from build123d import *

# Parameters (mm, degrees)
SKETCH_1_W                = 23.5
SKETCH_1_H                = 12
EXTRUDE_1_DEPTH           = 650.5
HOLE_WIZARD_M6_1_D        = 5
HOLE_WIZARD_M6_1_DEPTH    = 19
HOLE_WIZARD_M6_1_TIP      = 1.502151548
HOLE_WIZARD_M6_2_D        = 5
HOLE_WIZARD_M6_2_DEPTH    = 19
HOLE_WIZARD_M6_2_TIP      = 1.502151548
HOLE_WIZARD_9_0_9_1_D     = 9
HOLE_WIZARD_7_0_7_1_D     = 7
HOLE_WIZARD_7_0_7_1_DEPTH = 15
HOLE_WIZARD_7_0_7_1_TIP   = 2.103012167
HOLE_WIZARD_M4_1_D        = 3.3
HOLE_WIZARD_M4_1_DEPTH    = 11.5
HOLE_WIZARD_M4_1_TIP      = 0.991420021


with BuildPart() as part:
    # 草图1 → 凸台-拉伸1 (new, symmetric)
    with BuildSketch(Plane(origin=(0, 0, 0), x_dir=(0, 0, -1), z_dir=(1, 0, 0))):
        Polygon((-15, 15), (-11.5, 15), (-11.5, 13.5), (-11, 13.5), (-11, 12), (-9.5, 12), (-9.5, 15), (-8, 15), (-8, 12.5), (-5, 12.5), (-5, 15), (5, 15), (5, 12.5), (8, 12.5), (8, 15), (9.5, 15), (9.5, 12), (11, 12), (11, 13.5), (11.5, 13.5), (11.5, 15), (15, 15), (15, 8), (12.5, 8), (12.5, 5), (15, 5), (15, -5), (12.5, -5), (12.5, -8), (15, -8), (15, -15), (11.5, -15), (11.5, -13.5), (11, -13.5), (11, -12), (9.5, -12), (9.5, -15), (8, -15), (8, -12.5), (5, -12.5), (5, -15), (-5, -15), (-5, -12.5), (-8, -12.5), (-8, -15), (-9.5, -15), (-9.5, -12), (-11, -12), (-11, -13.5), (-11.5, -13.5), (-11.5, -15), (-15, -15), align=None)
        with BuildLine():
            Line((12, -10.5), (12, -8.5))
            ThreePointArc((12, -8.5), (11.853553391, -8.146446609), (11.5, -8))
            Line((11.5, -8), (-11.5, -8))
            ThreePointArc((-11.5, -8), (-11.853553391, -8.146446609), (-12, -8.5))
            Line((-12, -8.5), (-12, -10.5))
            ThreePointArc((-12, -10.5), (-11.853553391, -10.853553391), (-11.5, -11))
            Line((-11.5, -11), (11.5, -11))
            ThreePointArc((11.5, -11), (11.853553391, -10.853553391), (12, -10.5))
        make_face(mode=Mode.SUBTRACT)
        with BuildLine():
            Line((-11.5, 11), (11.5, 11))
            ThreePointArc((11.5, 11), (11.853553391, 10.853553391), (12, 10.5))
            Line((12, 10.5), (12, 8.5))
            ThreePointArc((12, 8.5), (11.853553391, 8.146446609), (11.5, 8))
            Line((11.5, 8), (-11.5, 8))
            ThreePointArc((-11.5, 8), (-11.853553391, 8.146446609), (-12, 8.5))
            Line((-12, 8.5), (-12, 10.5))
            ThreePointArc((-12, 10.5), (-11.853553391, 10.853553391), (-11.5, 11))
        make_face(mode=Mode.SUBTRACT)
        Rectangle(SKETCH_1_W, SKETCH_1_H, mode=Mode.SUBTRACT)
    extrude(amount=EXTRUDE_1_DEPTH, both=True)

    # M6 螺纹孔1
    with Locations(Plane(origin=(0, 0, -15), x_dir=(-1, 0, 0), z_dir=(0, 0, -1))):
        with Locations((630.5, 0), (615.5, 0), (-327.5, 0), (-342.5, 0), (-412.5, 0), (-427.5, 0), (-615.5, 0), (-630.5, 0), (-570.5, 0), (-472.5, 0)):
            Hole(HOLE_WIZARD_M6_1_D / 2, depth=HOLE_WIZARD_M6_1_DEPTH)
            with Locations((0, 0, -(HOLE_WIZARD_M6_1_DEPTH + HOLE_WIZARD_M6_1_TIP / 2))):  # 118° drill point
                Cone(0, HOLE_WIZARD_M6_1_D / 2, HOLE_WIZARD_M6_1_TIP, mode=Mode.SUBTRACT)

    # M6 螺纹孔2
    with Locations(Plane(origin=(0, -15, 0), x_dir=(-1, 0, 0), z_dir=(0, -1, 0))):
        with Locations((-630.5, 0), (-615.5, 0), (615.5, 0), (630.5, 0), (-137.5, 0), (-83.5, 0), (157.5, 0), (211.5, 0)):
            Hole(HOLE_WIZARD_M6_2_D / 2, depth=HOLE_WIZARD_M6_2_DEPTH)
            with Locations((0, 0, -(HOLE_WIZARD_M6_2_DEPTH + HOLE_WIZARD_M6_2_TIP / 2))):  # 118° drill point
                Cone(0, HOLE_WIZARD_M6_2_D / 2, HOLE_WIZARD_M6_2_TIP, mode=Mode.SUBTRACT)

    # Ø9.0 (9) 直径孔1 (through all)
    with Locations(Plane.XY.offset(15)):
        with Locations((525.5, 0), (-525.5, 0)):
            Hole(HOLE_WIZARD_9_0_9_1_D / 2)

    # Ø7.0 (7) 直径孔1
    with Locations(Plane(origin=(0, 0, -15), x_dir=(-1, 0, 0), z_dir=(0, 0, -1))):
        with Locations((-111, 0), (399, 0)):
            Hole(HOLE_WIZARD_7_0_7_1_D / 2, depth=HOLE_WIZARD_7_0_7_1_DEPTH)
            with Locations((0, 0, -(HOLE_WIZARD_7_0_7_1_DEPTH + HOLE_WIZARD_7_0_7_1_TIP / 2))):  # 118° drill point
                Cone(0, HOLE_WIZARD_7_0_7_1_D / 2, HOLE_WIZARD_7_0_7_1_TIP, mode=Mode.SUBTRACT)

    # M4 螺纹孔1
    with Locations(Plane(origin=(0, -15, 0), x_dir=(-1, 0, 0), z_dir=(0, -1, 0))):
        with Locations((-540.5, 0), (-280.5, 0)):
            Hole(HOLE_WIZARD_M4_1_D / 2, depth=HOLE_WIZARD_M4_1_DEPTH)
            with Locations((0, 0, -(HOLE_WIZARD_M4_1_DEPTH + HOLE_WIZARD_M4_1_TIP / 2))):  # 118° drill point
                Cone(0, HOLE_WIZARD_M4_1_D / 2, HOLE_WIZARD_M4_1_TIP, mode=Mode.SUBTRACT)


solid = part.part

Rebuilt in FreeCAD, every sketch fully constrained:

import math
import FreeCAD as App
import Part
import Sketcher

V = App.Vector

doc = App.newDocument("Part")
params = doc.addObject("Spreadsheet::Sheet", "Params")
for row, (alias, value) in enumerate([
    ("sketch1_radius", "0.5 mm"),
    ("sketch1_width", "30 mm"),
    ("sketch1_width2", "3 mm"),
    ("sketch1_width3", "7 mm"),
    ("sketch1_width4", "2 mm"),
    ("pad1_length", "1301 mm"),
    ("sketch2_diameter", "5 mm"),
    ("hole_diameter", "5 mm"),
    ("hole_depth", "19 mm"),
    ("sketch3_diameter", "5 mm"),
    ("hole2_diameter", "5 mm"),
    ("hole2_depth", "19 mm"),
    ("sketch4_diameter", "9 mm"),
    ("hole3_diameter", "9 mm"),
    ("sketch5_diameter", "7 mm"),
    ("hole4_diameter", "7 mm"),
    ("hole4_depth", "15 mm"),
    ("sketch6_diameter", "3.3 mm"),
    ("hole5_diameter", "3.3 mm"),
    ("hole5_depth", "11.5 mm"),
], start=1):
    params.set(f"A{row}", alias)
    params.set(f"B{row}", "=" + value)
    params.setAlias(f"B{row}", alias)

body = doc.addObject("PartDesign::Body", "Body")

# Sketch on YZ plane
sketch1 = body.newObject("Sketcher::SketchObject", "Sketch")
sketch1.AttachmentSupport = (doc.getObject("YZ_Plane"), [""])
sketch1.MapMode = "FlatFace"
sketch1.addGeometry(Part.LineSegment(V(15, 11.5, 0), V(15, 15, 0)), False)
sketch1.addGeometry(Part.LineSegment(V(15, 15, 0), V(-15, 15, 0)), False)
sketch1.addGeometry(Part.LineSegment(V(-15, 15, 0), V(-15, 11.5, 0)), False)
sketch1.addGeometry(Part.LineSegment(V(-15, 11.5, 0), V(-13.5, 11.5, 0)), False)
sketch1.addGeometry(Part.LineSegment(V(-13.5, 11.5, 0), V(-13.5, 11, 0)), False)
sketch1.addGeometry(Part.LineSegment(V(-13.5, 11, 0), V(-12, 11, 0)), False)
sketch1.addGeometry(Part.LineSegment(V(-12, 11, 0), V(-12, 9.5, 0)), False)
sketch1.addGeometry(Part.LineSegment(V(-12, 9.5, 0), V(-15, 9.5, 0)), False)
sketch1.addGeometry(Part.LineSegment(V(-15, 9.5, 0), V(-15, 8, 0)), False)
sketch1.addGeometry(Part.LineSegment(V(-15, 8, 0), V(-12.5, 8, 0)), False)
sketch1.addGeometry(Part.LineSegment(V(-12.5, 8, 0), V(-12.5, 5, 0)), False)
sketch1.addGeometry(Part.LineSegment(V(-12.5, 5, 0), V(-15, 5, 0)), False)
sketch1.addGeometry(Part.LineSegment(V(-15, 5, 0), V(-15, -5, 0)), False)
sketch1.addGeometry(Part.LineSegment(V(-15, -5, 0), V(-12.5, -5, 0)), False)
sketch1.addGeometry(Part.LineSegment(V(-12.5, -5, 0), V(-12.5, -8, 0)), False)
sketch1.addGeometry(Part.LineSegment(V(-12.5, -8, 0), V(-15, -8, 0)), False)
sketch1.addGeometry(Part.LineSegment(V(-15, -8, 0), V(-15, -9.5, 0)), False)
sketch1.addGeometry(Part.LineSegment(V(-15, -9.5, 0), V(-12, -9.5, 0)), False)
sketch1.addGeometry(Part.LineSegment(V(-12, -9.5, 0), V(-12, -11, 0)), False)
sketch1.addGeometry(Part.LineSegment(V(-12, -11, 0), V(-13.5, -11, 0)), False)
sketch1.addGeometry(Part.LineSegment(V(-13.5, -11, 0), V(-13.5, -11.5, 0)), False)
sketch1.addGeometry(Part.LineSegment(V(-13.5, -11.5, 0), V(-15, -11.5, 0)), False)
sketch1.addGeometry(Part.LineSegment(V(-15, -11.5, 0), V(-15, -15, 0)), False)
sketch1.addGeometry(Part.LineSegment(V(-15, -15, 0), V(-8, -15, 0)), False)
sketch1.addGeometry(Part.LineSegment(V(-8, -15, 0), V(-8, -12.5, 0)), False)
sketch1.addGeometry(Part.LineSegment(V(-8, -12.5, 0), V(-5, -12.5, 0)), False)
sketch1.addGeometry(Part.LineSegment(V(-5, -12.5, 0), V(-5, -15, 0)), False)
sketch1.addGeometry(Part.LineSegment(V(-5, -15, 0), V(5, -15, 0)), False)
sketch1.addGeometry(Part.LineSegment(V(5, -15, 0), V(5, -12.5, 0)), False)
sketch1.addGeometry(Part.LineSegment(V(5, -12.5, 0), V(8, -12.5, 0)), False)
sketch1.addGeometry(Part.LineSegment(V(8, -12.5, 0), V(8, -15, 0)), False)
sketch1.addGeometry(Part.LineSegment(V(8, -15, 0), V(15, -15, 0)), False)
sketch1.addGeometry(Part.LineSegment(V(15, -15, 0), V(15, -11.5, 0)), False)
sketch1.addGeometry(Part.LineSegment(V(15, -11.5, 0), V(13.5, -11.5, 0)), False)
sketch1.addGeometry(Part.LineSegment(V(13.5, -11.5, 0), V(13.5, -11, 0)), False)
sketch1.addGeometry(Part.LineSegment(V(13.5, -11, 0), V(12, -11, 0)), False)
sketch1.addGeometry(Part.LineSegment(V(12, -11, 0), V(12, -9.5, 0)), False)
sketch1.addGeometry(Part.LineSegment(V(12, -9.5, 0), V(15, -9.5, 0)), False)
sketch1.addGeometry(Part.LineSegment(V(15, -9.5, 0), V(15, -8, 0)), False)
sketch1.addGeometry(Part.LineSegment(V(15, -8, 0), V(12.5, -8, 0)), False)
sketch1.addGeometry(Part.LineSegment(V(12.5, -8, 0), V(12.5, -5, 0)), False)
sketch1.addGeometry(Part.LineSegment(V(12.5, -5, 0), V(15, -5, 0)), False)
sketch1.addGeometry(Part.LineSegment(V(15, -5, 0), V(15, 5, 0)), False)
sketch1.addGeometry(Part.LineSegment(V(15, 5, 0), V(12.5, 5, 0)), False)
sketch1.addGeometry(Part.LineSegment(V(12.5, 5, 0), V(12.5, 8, 0)), False)
sketch1.addGeometry(Part.LineSegment(V(12.5, 8, 0), V(15, 8, 0)), False)
sketch1.addGeometry(Part.LineSegment(V(15, 8, 0), V(15, 9.5, 0)), False)
sketch1.addGeometry(Part.LineSegment(V(15, 9.5, 0), V(12, 9.5, 0)), False)
sketch1.addGeometry(Part.LineSegment(V(12, 9.5, 0), V(12, 11, 0)), False)
sketch1.addGeometry(Part.LineSegment(V(12, 11, 0), V(13.5, 11, 0)), False)
sketch1.addGeometry(Part.LineSegment(V(13.5, 11, 0), V(13.5, 11.5, 0)), False)
sketch1.addGeometry(Part.LineSegment(V(13.5, 11.5, 0), V(15, 11.5, 0)), False)
sketch1.addGeometry(Part.ArcOfCircle(Part.Circle(V(-10.5, -11.5, 0), V(0, 0, 1), 0.5), math.radians(180), math.radians(270)), False)
sketch1.addGeometry(Part.LineSegment(V(-11, -11.5, 0), V(-11, 11.5, 0)), False)
sketch1.addGeometry(Part.ArcOfCircle(Part.Circle(V(-10.5, 11.5, 0), V(0, 0, 1), 0.5), math.radians(90), math.radians(180)), False)
sketch1.addGeometry(Part.LineSegment(V(-10.5, 12, 0), V(-8.5, 12, 0)), False)
sketch1.addGeometry(Part.ArcOfCircle(Part.Circle(V(-8.5, 11.5, 0), V(0, 0, 1), 0.5), math.radians(0), math.radians(90)), False)
sketch1.addGeometry(Part.LineSegment(V(-8, 11.5, 0), V(-8, -11.5, 0)), False)
sketch1.addGeometry(Part.ArcOfCircle(Part.Circle(V(-8.5, -11.5, 0), V(0, 0, 1), 0.5), math.radians(-90), math.radians(0)), False)
sketch1.addGeometry(Part.LineSegment(V(-8.5, -12, 0), V(-10.5, -12, 0)), False)
sketch1.addGeometry(Part.LineSegment(V(-6, 11.75, 0), V(6, 11.75, 0)), False)
sketch1.addGeometry(Part.LineSegment(V(6, 11.75, 0), V(6, -11.75, 0)), False)
sketch1.addGeometry(Part.LineSegment(V(6, -11.75, 0), V(-6, -11.75, 0)), False)
sketch1.addGeometry(Part.LineSegment(V(-6, -11.75, 0), V(-6, 11.75, 0)), False)
sketch1.addGeometry(Part.LineSegment(V(11, 11.5, 0), V(11, -11.5, 0)), False)
sketch1.addGeometry(Part.ArcOfCircle(Part.Circle(V(10.5, -11.5, 0), V(0, 0, 1), 0.5), math.radians(-90), math.radians(0)), False)
sketch1.addGeometry(Part.LineSegment(V(10.5, -12, 0), V(8.5, -12, 0)), False)
sketch1.addGeometry(Part.ArcOfCircle(Part.Circle(V(8.5, -11.5, 0), V(0, 0, 1), 0.5), math.radians(180), math.radians(270)), False)
sketch1.addGeometry(Part.LineSegment(V(8, -11.5, 0), V(8, 11.5, 0)), False)
sketch1.addGeometry(Part.ArcOfCircle(Part.Circle(V(8.5, 11.5, 0), V(0, 0, 1), 0.5), math.radians(90), math.radians(180)), False)
sketch1.addGeometry(Part.LineSegment(V(8.5, 12, 0), V(10.5, 12, 0)), False)
sketch1.addGeometry(Part.ArcOfCircle(Part.Circle(V(10.5, 11.5, 0), V(0, 0, 1), 0.5), math.radians(0), math.radians(90)), False)
sketch1.addConstraint(Sketcher.Constraint("Coincident", 0, 2, 1, 1))
sketch1.addConstraint(Sketcher.Constraint("Coincident", 1, 2, 2, 1))
sketch1.addConstraint(Sketcher.Constraint("Coincident", 2, 2, 3, 1))
sketch1.addConstraint(Sketcher.Constraint("Coincident", 3, 2, 4, 1))
sketch1.addConstraint(Sketcher.Constraint("Coincident", 4, 2, 5, 1))
sketch1.addConstraint(Sketcher.Constraint("Coincident", 5, 2, 6, 1))
sketch1.addConstraint(Sketcher.Constraint("Coincident", 6, 2, 7, 1))
sketch1.addConstraint(Sketcher.Constraint("Coincident", 7, 2, 8, 1))
sketch1.addConstraint(Sketcher.Constraint("Coincident", 8, 2, 9, 1))
sketch1.addConstraint(Sketcher.Constraint("Coincident", 9, 2, 10, 1))
sketch1.addConstraint(Sketcher.Constraint("Coincident", 10, 2, 11, 1))
sketch1.addConstraint(Sketcher.Constraint("Coincident", 11, 2, 12, 1))
sketch1.addConstraint(Sketcher.Constraint("Coincident", 12, 2, 13, 1))
sketch1.addConstraint(Sketcher.Constraint("Coincident", 13, 2, 14, 1))
sketch1.addConstraint(Sketcher.Constraint("Coincident", 14, 2, 15, 1))
sketch1.addConstraint(Sketcher.Constraint("Coincident", 15, 2, 16, 1))
sketch1.addConstraint(Sketcher.Constraint("Coincident", 16, 2, 17, 1))
sketch1.addConstraint(Sketcher.Constraint("Coincident", 17, 2, 18, 1))
sketch1.addConstraint(Sketcher.Constraint("Coincident", 18, 2, 19, 1))
sketch1.addConstraint(Sketcher.Constraint("Coincident", 19, 2, 20, 1))
sketch1.addConstraint(Sketcher.Constraint("Coincident", 20, 2, 21, 1))
sketch1.addConstraint(Sketcher.Constraint("Coincident", 21, 2, 22, 1))
sketch1.addConstraint(Sketcher.Constraint("Coincident", 22, 2, 23, 1))
sketch1.addConstraint(Sketcher.Constraint("Coincident", 23, 2, 24, 1))
sketch1.addConstraint(Sketcher.Constraint("Coincident", 24, 2, 25, 1))
sketch1.addConstraint(Sketcher.Constraint("Coincident", 25, 2, 26, 1))
sketch1.addConstraint(Sketcher.Constraint("Coincident", 26, 2, 27, 1))
sketch1.addConstraint(Sketcher.Constraint("Coincident", 27, 2, 28, 1))
sketch1.addConstraint(Sketcher.Constraint("Coincident", 28, 2, 29, 1))
sketch1.addConstraint(Sketcher.Constraint("Coincident", 29, 2, 30, 1))
sketch1.addConstraint(Sketcher.Constraint("Coincident", 30, 2, 31, 1))
sketch1.addConstraint(Sketcher.Constraint("Coincident", 31, 2, 32, 1))
sketch1.addConstraint(Sketcher.Constraint("Coincident", 32, 2, 33, 1))
sketch1.addConstraint(Sketcher.Constraint("Coincident", 33, 2, 34, 1))
sketch1.addConstraint(Sketcher.Constraint("Coincident", 34, 2, 35, 1))
sketch1.addConstraint(Sketcher.Constraint("Coincident", 35, 2, 36, 1))
sketch1.addConstraint(Sketcher.Constraint("Coincident", 36, 2, 37, 1))
sketch1.addConstraint(Sketcher.Constraint("Coincident", 37, 2, 38, 1))
sketch1.addConstraint(Sketcher.Constraint("Coincident", 38, 2, 39, 1))
sketch1.addConstraint(Sketcher.Constraint("Coincident", 39, 2, 40, 1))
sketch1.addConstraint(Sketcher.Constraint("Coincident", 40, 2, 41, 1))
sketch1.addConstraint(Sketcher.Constraint("Coincident", 41, 2, 42, 1))
sketch1.addConstraint(Sketcher.Constraint("Coincident", 42, 2, 43, 1))
sketch1.addConstraint(Sketcher.Constraint("Coincident", 43, 2, 44, 1))
sketch1.addConstraint(Sketcher.Constraint("Coincident", 44, 2, 45, 1))
sketch1.addConstraint(Sketcher.Constraint("Coincident", 45, 2, 46, 1))
sketch1.addConstraint(Sketcher.Constraint("Coincident", 46, 2, 47, 1))
sketch1.addConstraint(Sketcher.Constraint("Coincident", 47, 2, 48, 1))
sketch1.addConstraint(Sketcher.Constraint("Coincident", 48, 2, 49, 1))
sketch1.addConstraint(Sketcher.Constraint("Coincident", 49, 2, 50, 1))
sketch1.addConstraint(Sketcher.Constraint("Coincident", 50, 2, 51, 1))
sketch1.addConstraint(Sketcher.Constraint("Coincident", 51, 2, 0, 1))
sketch1.addConstraint(Sketcher.Constraint("Tangent", 52, 1, 53, 1))
sketch1.addConstraint(Sketcher.Constraint("Tangent", 53, 2, 54, 2))
sketch1.addConstraint(Sketcher.Constraint("Tangent", 54, 1, 55, 1))
sketch1.addConstraint(Sketcher.Constraint("Tangent", 55, 2, 56, 2))
sketch1.addConstraint(Sketcher.Constraint("Tangent", 56, 1, 57, 1))
sketch1.addConstraint(Sketcher.Constraint("Tangent", 57, 2, 58, 2))
sketch1.addConstraint(Sketcher.Constraint("Tangent", 58, 1, 59, 1))
sketch1.addConstraint(Sketcher.Constraint("Tangent", 59, 2, 52, 2))
sketch1.addConstraint(Sketcher.Constraint("Coincident", 60, 2, 61, 1))
sketch1.addConstraint(Sketcher.Constraint("Coincident", 61, 2, 62, 1))
sketch1.addConstraint(Sketcher.Constraint("Coincident", 62, 2, 63, 1))
sketch1.addConstraint(Sketcher.Constraint("Coincident", 63, 2, 60, 1))
sketch1.addConstraint(Sketcher.Constraint("Tangent", 64, 2, 65, 2))
sketch1.addConstraint(Sketcher.Constraint("Tangent", 65, 1, 66, 1))
sketch1.addConstraint(Sketcher.Constraint("Tangent", 66, 2, 67, 2))
sketch1.addConstraint(Sketcher.Constraint("Tangent", 67, 1, 68, 1))
sketch1.addConstraint(Sketcher.Constraint("Tangent", 68, 2, 69, 2))
sketch1.addConstraint(Sketcher.Constraint("Tangent", 69, 1, 70, 1))
sketch1.addConstraint(Sketcher.Constraint("Tangent", 70, 2, 71, 2))
sketch1.addConstraint(Sketcher.Constraint("Tangent", 71, 1, 64, 1))
sketch1.addConstraint(Sketcher.Constraint("Vertical", 0))
sketch1.addConstraint(Sketcher.Constraint("Horizontal", 1))
sketch1.addConstraint(Sketcher.Constraint("Vertical", 2))
sketch1.addConstraint(Sketcher.Constraint("Horizontal", 3))
sketch1.addConstraint(Sketcher.Constraint("Vertical", 4))
sketch1.addConstraint(Sketcher.Constraint("Horizontal", 5))
sketch1.addConstraint(Sketcher.Constraint("Vertical", 6))
sketch1.addConstraint(Sketcher.Constraint("Horizontal", 7))
sketch1.addConstraint(Sketcher.Constraint("Vertical", 8))
sketch1.addConstraint(Sketcher.Constraint("Horizontal", 9))
sketch1.addConstraint(Sketcher.Constraint("Vertical", 10))
sketch1.addConstraint(Sketcher.Constraint("Horizontal", 11))
sketch1.addConstraint(Sketcher.Constraint("Vertical", 12))
sketch1.addConstraint(Sketcher.Constraint("Horizontal", 13))
sketch1.addConstraint(Sketcher.Constraint("Vertical", 14))
sketch1.addConstraint(Sketcher.Constraint("Horizontal", 15))
sketch1.addConstraint(Sketcher.Constraint("Vertical", 16))
sketch1.addConstraint(Sketcher.Constraint("Horizontal", 17))
sketch1.addConstraint(Sketcher.Constraint("Vertical", 18))
sketch1.addConstraint(Sketcher.Constraint("Horizontal", 19))
sketch1.addConstraint(Sketcher.Constraint("Vertical", 20))
sketch1.addConstraint(Sketcher.Constraint("Horizontal", 21))
sketch1.addConstraint(Sketcher.Constraint("Vertical", 22))
sketch1.addConstraint(Sketcher.Constraint("Horizontal", 23))
sketch1.addConstraint(Sketcher.Constraint("Vertical", 24))
sketch1.addConstraint(Sketcher.Constraint("Horizontal", 25))
sketch1.addConstraint(Sketcher.Constraint("Vertical", 26))
sketch1.addConstraint(Sketcher.Constraint("Horizontal", 27))
sketch1.addConstraint(Sketcher.Constraint("Vertical", 28))
sketch1.addConstraint(Sketcher.Constraint("Horizontal", 29))
sketch1.addConstraint(Sketcher.Constraint("Vertical", 30))
sketch1.addConstraint(Sketcher.Constraint("Horizontal", 31))
sketch1.addConstraint(Sketcher.Constraint("Vertical", 32))
sketch1.addConstraint(Sketcher.Constraint("Horizontal", 33))
sketch1.addConstraint(Sketcher.Constraint("Vertical", 34))
sketch1.addConstraint(Sketcher.Constraint("Horizontal", 35))
sketch1.addConstraint(Sketcher.Constraint("Vertical", 36))
sketch1.addConstraint(Sketcher.Constraint("Horizontal", 37))
sketch1.addConstraint(Sketcher.Constraint("Vertical", 38))
sketch1.addConstraint(Sketcher.Constraint("Horizontal", 39))
sketch1.addConstraint(Sketcher.Constraint("Vertical", 40))
sketch1.addConstraint(Sketcher.Constraint("Horizontal", 41))
sketch1.addConstraint(Sketcher.Constraint("Vertical", 42))
sketch1.addConstraint(Sketcher.Constraint("Horizontal", 43))
sketch1.addConstraint(Sketcher.Constraint("Vertical", 44))
sketch1.addConstraint(Sketcher.Constraint("Horizontal", 45))
sketch1.addConstraint(Sketcher.Constraint("Vertical", 46))
sketch1.addConstraint(Sketcher.Constraint("Horizontal", 47))
sketch1.addConstraint(Sketcher.Constraint("Vertical", 48))
sketch1.addConstraint(Sketcher.Constraint("Horizontal", 49))
sketch1.addConstraint(Sketcher.Constraint("Vertical", 50))
sketch1.addConstraint(Sketcher.Constraint("Horizontal", 51))
sketch1.addConstraint(Sketcher.Constraint("Vertical", 53))
sketch1.addConstraint(Sketcher.Constraint("Horizontal", 55))
sketch1.addConstraint(Sketcher.Constraint("Vertical", 57))
sketch1.addConstraint(Sketcher.Constraint("Horizontal", 59))
sketch1.addConstraint(Sketcher.Constraint("Horizontal", 60))
sketch1.addConstraint(Sketcher.Constraint("Vertical", 61))
sketch1.addConstraint(Sketcher.Constraint("Horizontal", 62))
sketch1.addConstraint(Sketcher.Constraint("Vertical", 63))
sketch1.addConstraint(Sketcher.Constraint("Vertical", 64))
sketch1.addConstraint(Sketcher.Constraint("Horizontal", 66))
sketch1.addConstraint(Sketcher.Constraint("Vertical", 68))
sketch1.addConstraint(Sketcher.Constraint("Horizontal", 70))
sketch1.addConstraint(Sketcher.Constraint("Equal", 52, 54))
sketch1.addConstraint(Sketcher.Constraint("Equal", 54, 56))
sketch1.addConstraint(Sketcher.Constraint("Equal", 56, 58))
sketch1.addConstraint(Sketcher.Constraint("Equal", 58, 65))
sketch1.addConstraint(Sketcher.Constraint("Equal", 65, 67))
sketch1.addConstraint(Sketcher.Constraint("Equal", 67, 69))
sketch1.addConstraint(Sketcher.Constraint("Equal", 69, 71))
sketch1.addConstraint(Sketcher.Constraint("Symmetric", 54, 3, 65, 3, -1, 1))
sketch1.addConstraint(Sketcher.Constraint("Symmetric", 58, 3, 69, 3, -1, 1))
sketch1.addConstraint(Sketcher.Constraint("Symmetric", 0, 2, 22, 2, -1, 1))
sketch1.addConstraint(Sketcher.Constraint("Symmetric", 1, 2, 31, 2, -1, 1))
sketch1.addConstraint(Sketcher.Constraint("Symmetric", 3, 2, 33, 2, -1, 1))
sketch1.addConstraint(Sketcher.Constraint("Symmetric", 5, 2, 35, 2, -1, 1))
sketch1.addConstraint(Sketcher.Constraint("Symmetric", 7, 2, 37, 2, -1, 1))
sketch1.addConstraint(Sketcher.Constraint("Symmetric", 9, 2, 39, 2, -1, 1))
sketch1.addConstraint(Sketcher.Constraint("Symmetric", 11, 2, 41, 2, -1, 1))
sketch1.addConstraint(Sketcher.Constraint("Symmetric", 13, 2, 43, 2, -1, 1))
sketch1.addConstraint(Sketcher.Constraint("Symmetric", 15, 2, 45, 2, -1, 1))
sketch1.addConstraint(Sketcher.Constraint("Symmetric", 17, 2, 47, 2, -1, 1))
sketch1.addConstraint(Sketcher.Constraint("Symmetric", 19, 2, 49, 2, -1, 1))
sketch1.addConstraint(Sketcher.Constraint("Symmetric", 60, 2, 62, 2, -1, 1))
sketch1.addConstraint(Sketcher.Constraint("Symmetric", 25, 2, 28, 2, -2))
sketch1.addConstraint(Sketcher.Constraint("Symmetric", 21, 2, 32, 2, -2))
sketch1.addConstraint(Sketcher.Constraint("Symmetric", 19, 2, 34, 2, -2))
sketch1.addConstraint(Sketcher.Constraint("Symmetric", 17, 2, 36, 2, -2))
sketch1.addConstraint(Sketcher.Constraint("Symmetric", 15, 2, 38, 2, -2))
sketch1.addConstraint(Sketcher.Constraint("Symmetric", 13, 2, 40, 2, -2))
sketch1.addConstraint(Sketcher.Constraint("Horizontal", 58, 3, 65, 3))
sketch1.addConstraint(Sketcher.Constraint("Horizontal", 71, 3, 2, 2))
sketch1.addConstraint(Sketcher.Constraint("Horizontal", 23, 2, 26, 2))
sketch1.addConstraint(Sketcher.Constraint("Horizontal", 3, 2, 50, 2))
sketch1.addConstraint(Sketcher.Constraint("Vertical", 2, 2, 7, 2))
sketch1.addConstraint(Sketcher.Constraint("Vertical", 8, 2, 11, 2))
sketch1.addConstraint(Sketcher.Constraint("Vertical", 24, 2, 56, 1))
sketch1.addConstraint(Sketcher.Constraint("Vertical", 30, 2, 67, 1))
sketch1.addConstraint(Sketcher.Constraint("Equal", 3, 5))
sketch1.addConstraint(Sketcher.Constraint("Equal", 17, 25))
sketch1.addConstraint(Sketcher.Constraint("Equal", 51, 6))
sketch1.addConstraint(Sketcher.Constraint("Equal", 6, 8))
sketch1.addConstraint(Sketcher.Constraint("Equal", 47, 10))
sketch1.addConstraint(Sketcher.Constraint("Equal", 27, 12))
sketch1.addConstraint(Sketcher.Constraint("Equal", 45, 24))
sketch1.addConstraint(Sketcher.Constraint("Radius", 52, 0.5))
sketch1.addConstraint(Sketcher.Constraint("DistanceX", 1, 2, 1, 1, 30.0))
sketch1.addConstraint(Sketcher.Constraint("DistanceX", 7, 2, 7, 1, 3.0))
sketch1.addConstraint(Sketcher.Constraint("DistanceX", 23, 1, 23, 2, 7.0))
sketch1.addConstraint(Sketcher.Constraint("DistanceX", 55, 1, 55, 2, 2.0))
sketch1.addConstraint(Sketcher.Constraint("DistanceX", 60, 1, 60, 2, 12.0))
sketch1.addConstraint(Sketcher.Constraint("DistanceY", 53, 1, 53, 2, 23.0))
sketch1.addConstraint(Sketcher.Constraint("DistanceX", 9, 1, 9, 2, 2.5))
sketch1.addConstraint(Sketcher.Constraint("DistanceY", 0, 1, 0, 2, 3.5))
sketch1.addConstraint(Sketcher.Constraint("DistanceY", 61, 2, 61, 1, 23.5))
sketch1.setExpression("Constraints[178]", "Params.sketch1_radius")
sketch1.setExpression("Constraints[179]", "Params.sketch1_width")
sketch1.setExpression("Constraints[180]", "Params.sketch1_width2")
sketch1.setExpression("Constraints[181]", "Params.sketch1_width3")
sketch1.setExpression("Constraints[182]", "Params.sketch1_width4")
pad1 = body.newObject("PartDesign::Pad", "Pad")
pad1.Profile = sketch1
pad1.setExpression("Length", "Params.pad1_length")
pad1.Midplane = True

# Sketch on XY plane
sketch2 = body.newObject("Sketcher::SketchObject", "Sketch001")
sketch2.AttachmentSupport = (doc.getObject("XY_Plane"), [""])
sketch2.MapMode = "FlatFace"
sketch2.AttachmentOffset = App.Placement(V(0, 0, -15), App.Rotation())
sketch2.addGeometry(Part.Circle(V(-630.5, 0, 0), V(0, 0, 1), 2.5), False)
sketch2.addGeometry(Part.Circle(V(-615.5, 0, 0), V(0, 0, 1), 2.5), False)
sketch2.addGeometry(Part.Circle(V(327.5, 0, 0), V(0, 0, 1), 2.5), False)
sketch2.addGeometry(Part.Circle(V(342.5, 0, 0), V(0, 0, 1), 2.5), False)
sketch2.addGeometry(Part.Circle(V(412.5, 0, 0), V(0, 0, 1), 2.5), False)
sketch2.addGeometry(Part.Circle(V(427.5, 0, 0), V(0, 0, 1), 2.5), False)
sketch2.addGeometry(Part.Circle(V(615.5, 0, 0), V(0, 0, 1), 2.5), False)
sketch2.addGeometry(Part.Circle(V(630.5, 0, 0), V(0, 0, 1), 2.5), False)
sketch2.addGeometry(Part.Circle(V(570.5, 0, 0), V(0, 0, 1), 2.5), False)
sketch2.addGeometry(Part.Circle(V(472.5, 0, 0), V(0, 0, 1), 2.5), False)
sketch2.addConstraint(Sketcher.Constraint("Equal", 0, 1))
sketch2.addConstraint(Sketcher.Constraint("Equal", 1, 2))
sketch2.addConstraint(Sketcher.Constraint("Equal", 2, 3))
sketch2.addConstraint(Sketcher.Constraint("Equal", 3, 4))
sketch2.addConstraint(Sketcher.Constraint("Equal", 4, 5))
sketch2.addConstraint(Sketcher.Constraint("Equal", 5, 6))
sketch2.addConstraint(Sketcher.Constraint("Equal", 6, 7))
sketch2.addConstraint(Sketcher.Constraint("Equal", 7, 8))
sketch2.addConstraint(Sketcher.Constraint("Equal", 8, 9))
sketch2.addConstraint(Sketcher.Constraint("Symmetric", 1, 3, 6, 3, -1, 1))
sketch2.addConstraint(Sketcher.Constraint("Symmetric", 0, 3, 7, 3, -1, 1))
sketch2.addConstraint(Sketcher.Constraint("PointOnObject", 0, 3, -1))
sketch2.addConstraint(Sketcher.Constraint("PointOnObject", 1, 3, -1))
sketch2.addConstraint(Sketcher.Constraint("PointOnObject", 2, 3, -1))
sketch2.addConstraint(Sketcher.Constraint("PointOnObject", 3, 3, -1))
sketch2.addConstraint(Sketcher.Constraint("PointOnObject", 4, 3, -1))
sketch2.addConstraint(Sketcher.Constraint("PointOnObject", 5, 3, -1))
sketch2.addConstraint(Sketcher.Constraint("PointOnObject", 8, 3, -1))
sketch2.addConstraint(Sketcher.Constraint("PointOnObject", 9, 3, -1))
sketch2.addConstraint(Sketcher.Constraint("Diameter", 0, 5.0))
sketch2.addConstraint(Sketcher.Constraint("DistanceX", 0, 3, 1, 3, 15.0))
sketch2.addConstraint(Sketcher.Constraint("DistanceX", 1, 3, 2, 3, 943.0))
sketch2.addConstraint(Sketcher.Constraint("DistanceX", 2, 3, 3, 3, 15.0))
sketch2.addConstraint(Sketcher.Constraint("DistanceX", 3, 3, 4, 3, 70.0))
sketch2.addConstraint(Sketcher.Constraint("DistanceX", 4, 3, 5, 3, 15.0))
sketch2.addConstraint(Sketcher.Constraint("DistanceX", 5, 3, 6, 3, 188.0))
sketch2.addConstraint(Sketcher.Constraint("DistanceX", 8, 3, 6, 3, 45.0))
sketch2.addConstraint(Sketcher.Constraint("DistanceX", 5, 3, 9, 3, 45.0))
sketch2.setExpression("Constraints[19]", "Params.sketch2_diameter")
doc.recompute()
hole = body.newObject("PartDesign::Hole", "Hole")
hole.Profile = sketch2
hole.ThreadType = "None"
hole.setExpression("Diameter", "Params.hole_diameter")
hole.DepthType = "Dimension"
hole.setExpression("Depth", "Params.hole_depth")
hole.DrillPoint = "Angled"
hole.DrillPointAngle = 118
hole.Reversed = True

# Sketch on XZ plane
sketch3 = body.newObject("Sketcher::SketchObject", "Sketch002")
sketch3.AttachmentSupport = (doc.getObject("XZ_Plane"), [""])
sketch3.MapMode = "FlatFace"
sketch3.AttachmentOffset = App.Placement(V(0, 0, 15), App.Rotation())
sketch3.addGeometry(Part.Circle(V(630.5, 0, 0), V(0, 0, 1), 2.5), False)
sketch3.addGeometry(Part.Circle(V(615.5, 0, 0), V(0, 0, 1), 2.5), False)
sketch3.addGeometry(Part.Circle(V(-615.5, 0, 0), V(0, 0, 1), 2.5), False)
sketch3.addGeometry(Part.Circle(V(-630.5, 0, 0), V(0, 0, 1), 2.5), False)
sketch3.addGeometry(Part.Circle(V(137.5, 0, 0), V(0, 0, 1), 2.5), False)
sketch3.addGeometry(Part.Circle(V(83.5, 0, 0), V(0, 0, 1), 2.5), False)
sketch3.addGeometry(Part.Circle(V(-157.5, 0, 0), V(0, 0, 1), 2.5), False)
sketch3.addGeometry(Part.Circle(V(-211.5, 0, 0), V(0, 0, 1), 2.5), False)
sketch3.addConstraint(Sketcher.Constraint("Equal", 0, 1))
sketch3.addConstraint(Sketcher.Constraint("Equal", 1, 2))
sketch3.addConstraint(Sketcher.Constraint("Equal", 2, 3))
sketch3.addConstraint(Sketcher.Constraint("Equal", 3, 4))
sketch3.addConstraint(Sketcher.Constraint("Equal", 4, 5))
sketch3.addConstraint(Sketcher.Constraint("Equal", 5, 6))
sketch3.addConstraint(Sketcher.Constraint("Equal", 6, 7))
sketch3.addConstraint(Sketcher.Constraint("Symmetric", 1, 3, 2, 3, -1, 1))
sketch3.addConstraint(Sketcher.Constraint("Symmetric", 0, 3, 3, 3, -1, 1))
sketch3.addConstraint(Sketcher.Constraint("PointOnObject", 0, 3, -1))
sketch3.addConstraint(Sketcher.Constraint("PointOnObject", 1, 3, -1))
sketch3.addConstraint(Sketcher.Constraint("PointOnObject", 4, 3, -1))
sketch3.addConstraint(Sketcher.Constraint("PointOnObject", 5, 3, -1))
sketch3.addConstraint(Sketcher.Constraint("PointOnObject", 6, 3, -1))
sketch3.addConstraint(Sketcher.Constraint("PointOnObject", 7, 3, -1))
sketch3.addConstraint(Sketcher.Constraint("Diameter", 0, 5.0))
sketch3.addConstraint(Sketcher.Constraint("DistanceX", 1, 3, 0, 3, 15.0))
sketch3.addConstraint(Sketcher.Constraint("DistanceX", 2, 3, 1, 3, 1231.0))
sketch3.addConstraint(Sketcher.Constraint("DistanceX", 4, 3, 1, 3, 478.0))
sketch3.addConstraint(Sketcher.Constraint("DistanceX", 5, 3, 4, 3, 54.0))
sketch3.addConstraint(Sketcher.Constraint("DistanceX", 6, 3, 5, 3, 241.0))
sketch3.addConstraint(Sketcher.Constraint("DistanceX", 7, 3, 6, 3, 54.0))
sketch3.setExpression("Constraints[15]", "Params.sketch3_diameter")
doc.recompute()
hole2 = body.newObject("PartDesign::Hole", "Hole001")
hole2.Profile = sketch3
hole2.ThreadType = "None"
hole2.setExpression("Diameter", "Params.hole2_diameter")
hole2.DepthType = "Dimension"
hole2.setExpression("Depth", "Params.hole2_depth")
hole2.DrillPoint = "Angled"
hole2.DrillPointAngle = 118

# Sketch on XY plane
sketch4 = body.newObject("Sketcher::SketchObject", "Sketch003")
sketch4.AttachmentSupport = (doc.getObject("XY_Plane"), [""])
sketch4.MapMode = "FlatFace"
sketch4.AttachmentOffset = App.Placement(V(0, 0, 15), App.Rotation())
sketch4.addGeometry(Part.Circle(V(525.5, 0, 0), V(0, 0, 1), 4.5), False)
sketch4.addGeometry(Part.Circle(V(-525.5, 0, 0), V(0, 0, 1), 4.5), False)
sketch4.addConstraint(Sketcher.Constraint("Equal", 0, 1))
sketch4.addConstraint(Sketcher.Constraint("Symmetric", 0, 3, 1, 3, -1, 1))
sketch4.addConstraint(Sketcher.Constraint("PointOnObject", 0, 3, -1))
sketch4.addConstraint(Sketcher.Constraint("Diameter", 0, 9.0))
sketch4.addConstraint(Sketcher.Constraint("DistanceX", 1, 3, 0, 3, 1051.0))
sketch4.setExpression("Constraints[3]", "Params.sketch4_diameter")
doc.recompute()
hole3 = body.newObject("PartDesign::Hole", "Hole002")
hole3.Profile = sketch4
hole3.ThreadType = "None"
hole3.setExpression("Diameter", "Params.hole3_diameter")
hole3.DepthType = "ThroughAll"

# Sketch on XY plane
sketch5 = body.newObject("Sketcher::SketchObject", "Sketch004")
sketch5.AttachmentSupport = (doc.getObject("XY_Plane"), [""])
sketch5.MapMode = "FlatFace"
sketch5.AttachmentOffset = App.Placement(V(0, 0, -15), App.Rotation())
sketch5.addGeometry(Part.Circle(V(111, 0, 0), V(0, 0, 1), 3.5), False)
sketch5.addGeometry(Part.Circle(V(-399, 0, 0), V(0, 0, 1), 3.5), False)
sketch5.addConstraint(Sketcher.Constraint("Equal", 0, 1))
sketch5.addConstraint(Sketcher.Constraint("PointOnObject", 0, 3, -1))
sketch5.addConstraint(Sketcher.Constraint("PointOnObject", 1, 3, -1))
sketch5.addConstraint(Sketcher.Constraint("Diameter", 0, 7.0))
sketch5.addConstraint(Sketcher.Constraint("DistanceX", -1, 1, 0, 3, 111.0))
sketch5.addConstraint(Sketcher.Constraint("DistanceX", 1, 3, -1, 1, 399.0))
sketch5.setExpression("Constraints[3]", "Params.sketch5_diameter")
doc.recompute()
hole4 = body.newObject("PartDesign::Hole", "Hole003")
hole4.Profile = sketch5
hole4.ThreadType = "None"
hole4.setExpression("Diameter", "Params.hole4_diameter")
hole4.DepthType = "Dimension"
hole4.setExpression("Depth", "Params.hole4_depth")
hole4.DrillPoint = "Angled"
hole4.DrillPointAngle = 118
hole4.Reversed = True

# Sketch on XZ plane
sketch6 = body.newObject("Sketcher::SketchObject", "Sketch005")
sketch6.AttachmentSupport = (doc.getObject("XZ_Plane"), [""])
sketch6.MapMode = "FlatFace"
sketch6.AttachmentOffset = App.Placement(V(0, 0, 15), App.Rotation())
sketch6.addGeometry(Part.Circle(V(540.5, 0, 0), V(0, 0, 1), 1.6), False)
sketch6.addGeometry(Part.Circle(V(280.5, 0, 0), V(0, 0, 1), 1.6), False)
sketch6.addConstraint(Sketcher.Constraint("Equal", 0, 1))
sketch6.addConstraint(Sketcher.Constraint("PointOnObject", 0, 3, -1))
sketch6.addConstraint(Sketcher.Constraint("PointOnObject", 1, 3, -1))
sketch6.addConstraint(Sketcher.Constraint("Diameter", 0, 3.3))
sketch6.addConstraint(Sketcher.Constraint("DistanceX", 1, 3, 0, 3, 260.0))
sketch6.addConstraint(Sketcher.Constraint("DistanceX", -1, 1, 0, 3, 540.5))
sketch6.setExpression("Constraints[3]", "Params.sketch6_diameter")
doc.recompute()
hole5 = body.newObject("PartDesign::Hole", "Hole004")
hole5.Profile = sketch6
hole5.ThreadType = "None"
hole5.setExpression("Diameter", "Params.hole5_diameter")
hole5.DepthType = "Dimension"
hole5.setExpression("Depth", "Params.hole5_depth")
hole5.DrillPoint = "Angled"
hole5.DrillPointAngle = 118

doc.recompute()
